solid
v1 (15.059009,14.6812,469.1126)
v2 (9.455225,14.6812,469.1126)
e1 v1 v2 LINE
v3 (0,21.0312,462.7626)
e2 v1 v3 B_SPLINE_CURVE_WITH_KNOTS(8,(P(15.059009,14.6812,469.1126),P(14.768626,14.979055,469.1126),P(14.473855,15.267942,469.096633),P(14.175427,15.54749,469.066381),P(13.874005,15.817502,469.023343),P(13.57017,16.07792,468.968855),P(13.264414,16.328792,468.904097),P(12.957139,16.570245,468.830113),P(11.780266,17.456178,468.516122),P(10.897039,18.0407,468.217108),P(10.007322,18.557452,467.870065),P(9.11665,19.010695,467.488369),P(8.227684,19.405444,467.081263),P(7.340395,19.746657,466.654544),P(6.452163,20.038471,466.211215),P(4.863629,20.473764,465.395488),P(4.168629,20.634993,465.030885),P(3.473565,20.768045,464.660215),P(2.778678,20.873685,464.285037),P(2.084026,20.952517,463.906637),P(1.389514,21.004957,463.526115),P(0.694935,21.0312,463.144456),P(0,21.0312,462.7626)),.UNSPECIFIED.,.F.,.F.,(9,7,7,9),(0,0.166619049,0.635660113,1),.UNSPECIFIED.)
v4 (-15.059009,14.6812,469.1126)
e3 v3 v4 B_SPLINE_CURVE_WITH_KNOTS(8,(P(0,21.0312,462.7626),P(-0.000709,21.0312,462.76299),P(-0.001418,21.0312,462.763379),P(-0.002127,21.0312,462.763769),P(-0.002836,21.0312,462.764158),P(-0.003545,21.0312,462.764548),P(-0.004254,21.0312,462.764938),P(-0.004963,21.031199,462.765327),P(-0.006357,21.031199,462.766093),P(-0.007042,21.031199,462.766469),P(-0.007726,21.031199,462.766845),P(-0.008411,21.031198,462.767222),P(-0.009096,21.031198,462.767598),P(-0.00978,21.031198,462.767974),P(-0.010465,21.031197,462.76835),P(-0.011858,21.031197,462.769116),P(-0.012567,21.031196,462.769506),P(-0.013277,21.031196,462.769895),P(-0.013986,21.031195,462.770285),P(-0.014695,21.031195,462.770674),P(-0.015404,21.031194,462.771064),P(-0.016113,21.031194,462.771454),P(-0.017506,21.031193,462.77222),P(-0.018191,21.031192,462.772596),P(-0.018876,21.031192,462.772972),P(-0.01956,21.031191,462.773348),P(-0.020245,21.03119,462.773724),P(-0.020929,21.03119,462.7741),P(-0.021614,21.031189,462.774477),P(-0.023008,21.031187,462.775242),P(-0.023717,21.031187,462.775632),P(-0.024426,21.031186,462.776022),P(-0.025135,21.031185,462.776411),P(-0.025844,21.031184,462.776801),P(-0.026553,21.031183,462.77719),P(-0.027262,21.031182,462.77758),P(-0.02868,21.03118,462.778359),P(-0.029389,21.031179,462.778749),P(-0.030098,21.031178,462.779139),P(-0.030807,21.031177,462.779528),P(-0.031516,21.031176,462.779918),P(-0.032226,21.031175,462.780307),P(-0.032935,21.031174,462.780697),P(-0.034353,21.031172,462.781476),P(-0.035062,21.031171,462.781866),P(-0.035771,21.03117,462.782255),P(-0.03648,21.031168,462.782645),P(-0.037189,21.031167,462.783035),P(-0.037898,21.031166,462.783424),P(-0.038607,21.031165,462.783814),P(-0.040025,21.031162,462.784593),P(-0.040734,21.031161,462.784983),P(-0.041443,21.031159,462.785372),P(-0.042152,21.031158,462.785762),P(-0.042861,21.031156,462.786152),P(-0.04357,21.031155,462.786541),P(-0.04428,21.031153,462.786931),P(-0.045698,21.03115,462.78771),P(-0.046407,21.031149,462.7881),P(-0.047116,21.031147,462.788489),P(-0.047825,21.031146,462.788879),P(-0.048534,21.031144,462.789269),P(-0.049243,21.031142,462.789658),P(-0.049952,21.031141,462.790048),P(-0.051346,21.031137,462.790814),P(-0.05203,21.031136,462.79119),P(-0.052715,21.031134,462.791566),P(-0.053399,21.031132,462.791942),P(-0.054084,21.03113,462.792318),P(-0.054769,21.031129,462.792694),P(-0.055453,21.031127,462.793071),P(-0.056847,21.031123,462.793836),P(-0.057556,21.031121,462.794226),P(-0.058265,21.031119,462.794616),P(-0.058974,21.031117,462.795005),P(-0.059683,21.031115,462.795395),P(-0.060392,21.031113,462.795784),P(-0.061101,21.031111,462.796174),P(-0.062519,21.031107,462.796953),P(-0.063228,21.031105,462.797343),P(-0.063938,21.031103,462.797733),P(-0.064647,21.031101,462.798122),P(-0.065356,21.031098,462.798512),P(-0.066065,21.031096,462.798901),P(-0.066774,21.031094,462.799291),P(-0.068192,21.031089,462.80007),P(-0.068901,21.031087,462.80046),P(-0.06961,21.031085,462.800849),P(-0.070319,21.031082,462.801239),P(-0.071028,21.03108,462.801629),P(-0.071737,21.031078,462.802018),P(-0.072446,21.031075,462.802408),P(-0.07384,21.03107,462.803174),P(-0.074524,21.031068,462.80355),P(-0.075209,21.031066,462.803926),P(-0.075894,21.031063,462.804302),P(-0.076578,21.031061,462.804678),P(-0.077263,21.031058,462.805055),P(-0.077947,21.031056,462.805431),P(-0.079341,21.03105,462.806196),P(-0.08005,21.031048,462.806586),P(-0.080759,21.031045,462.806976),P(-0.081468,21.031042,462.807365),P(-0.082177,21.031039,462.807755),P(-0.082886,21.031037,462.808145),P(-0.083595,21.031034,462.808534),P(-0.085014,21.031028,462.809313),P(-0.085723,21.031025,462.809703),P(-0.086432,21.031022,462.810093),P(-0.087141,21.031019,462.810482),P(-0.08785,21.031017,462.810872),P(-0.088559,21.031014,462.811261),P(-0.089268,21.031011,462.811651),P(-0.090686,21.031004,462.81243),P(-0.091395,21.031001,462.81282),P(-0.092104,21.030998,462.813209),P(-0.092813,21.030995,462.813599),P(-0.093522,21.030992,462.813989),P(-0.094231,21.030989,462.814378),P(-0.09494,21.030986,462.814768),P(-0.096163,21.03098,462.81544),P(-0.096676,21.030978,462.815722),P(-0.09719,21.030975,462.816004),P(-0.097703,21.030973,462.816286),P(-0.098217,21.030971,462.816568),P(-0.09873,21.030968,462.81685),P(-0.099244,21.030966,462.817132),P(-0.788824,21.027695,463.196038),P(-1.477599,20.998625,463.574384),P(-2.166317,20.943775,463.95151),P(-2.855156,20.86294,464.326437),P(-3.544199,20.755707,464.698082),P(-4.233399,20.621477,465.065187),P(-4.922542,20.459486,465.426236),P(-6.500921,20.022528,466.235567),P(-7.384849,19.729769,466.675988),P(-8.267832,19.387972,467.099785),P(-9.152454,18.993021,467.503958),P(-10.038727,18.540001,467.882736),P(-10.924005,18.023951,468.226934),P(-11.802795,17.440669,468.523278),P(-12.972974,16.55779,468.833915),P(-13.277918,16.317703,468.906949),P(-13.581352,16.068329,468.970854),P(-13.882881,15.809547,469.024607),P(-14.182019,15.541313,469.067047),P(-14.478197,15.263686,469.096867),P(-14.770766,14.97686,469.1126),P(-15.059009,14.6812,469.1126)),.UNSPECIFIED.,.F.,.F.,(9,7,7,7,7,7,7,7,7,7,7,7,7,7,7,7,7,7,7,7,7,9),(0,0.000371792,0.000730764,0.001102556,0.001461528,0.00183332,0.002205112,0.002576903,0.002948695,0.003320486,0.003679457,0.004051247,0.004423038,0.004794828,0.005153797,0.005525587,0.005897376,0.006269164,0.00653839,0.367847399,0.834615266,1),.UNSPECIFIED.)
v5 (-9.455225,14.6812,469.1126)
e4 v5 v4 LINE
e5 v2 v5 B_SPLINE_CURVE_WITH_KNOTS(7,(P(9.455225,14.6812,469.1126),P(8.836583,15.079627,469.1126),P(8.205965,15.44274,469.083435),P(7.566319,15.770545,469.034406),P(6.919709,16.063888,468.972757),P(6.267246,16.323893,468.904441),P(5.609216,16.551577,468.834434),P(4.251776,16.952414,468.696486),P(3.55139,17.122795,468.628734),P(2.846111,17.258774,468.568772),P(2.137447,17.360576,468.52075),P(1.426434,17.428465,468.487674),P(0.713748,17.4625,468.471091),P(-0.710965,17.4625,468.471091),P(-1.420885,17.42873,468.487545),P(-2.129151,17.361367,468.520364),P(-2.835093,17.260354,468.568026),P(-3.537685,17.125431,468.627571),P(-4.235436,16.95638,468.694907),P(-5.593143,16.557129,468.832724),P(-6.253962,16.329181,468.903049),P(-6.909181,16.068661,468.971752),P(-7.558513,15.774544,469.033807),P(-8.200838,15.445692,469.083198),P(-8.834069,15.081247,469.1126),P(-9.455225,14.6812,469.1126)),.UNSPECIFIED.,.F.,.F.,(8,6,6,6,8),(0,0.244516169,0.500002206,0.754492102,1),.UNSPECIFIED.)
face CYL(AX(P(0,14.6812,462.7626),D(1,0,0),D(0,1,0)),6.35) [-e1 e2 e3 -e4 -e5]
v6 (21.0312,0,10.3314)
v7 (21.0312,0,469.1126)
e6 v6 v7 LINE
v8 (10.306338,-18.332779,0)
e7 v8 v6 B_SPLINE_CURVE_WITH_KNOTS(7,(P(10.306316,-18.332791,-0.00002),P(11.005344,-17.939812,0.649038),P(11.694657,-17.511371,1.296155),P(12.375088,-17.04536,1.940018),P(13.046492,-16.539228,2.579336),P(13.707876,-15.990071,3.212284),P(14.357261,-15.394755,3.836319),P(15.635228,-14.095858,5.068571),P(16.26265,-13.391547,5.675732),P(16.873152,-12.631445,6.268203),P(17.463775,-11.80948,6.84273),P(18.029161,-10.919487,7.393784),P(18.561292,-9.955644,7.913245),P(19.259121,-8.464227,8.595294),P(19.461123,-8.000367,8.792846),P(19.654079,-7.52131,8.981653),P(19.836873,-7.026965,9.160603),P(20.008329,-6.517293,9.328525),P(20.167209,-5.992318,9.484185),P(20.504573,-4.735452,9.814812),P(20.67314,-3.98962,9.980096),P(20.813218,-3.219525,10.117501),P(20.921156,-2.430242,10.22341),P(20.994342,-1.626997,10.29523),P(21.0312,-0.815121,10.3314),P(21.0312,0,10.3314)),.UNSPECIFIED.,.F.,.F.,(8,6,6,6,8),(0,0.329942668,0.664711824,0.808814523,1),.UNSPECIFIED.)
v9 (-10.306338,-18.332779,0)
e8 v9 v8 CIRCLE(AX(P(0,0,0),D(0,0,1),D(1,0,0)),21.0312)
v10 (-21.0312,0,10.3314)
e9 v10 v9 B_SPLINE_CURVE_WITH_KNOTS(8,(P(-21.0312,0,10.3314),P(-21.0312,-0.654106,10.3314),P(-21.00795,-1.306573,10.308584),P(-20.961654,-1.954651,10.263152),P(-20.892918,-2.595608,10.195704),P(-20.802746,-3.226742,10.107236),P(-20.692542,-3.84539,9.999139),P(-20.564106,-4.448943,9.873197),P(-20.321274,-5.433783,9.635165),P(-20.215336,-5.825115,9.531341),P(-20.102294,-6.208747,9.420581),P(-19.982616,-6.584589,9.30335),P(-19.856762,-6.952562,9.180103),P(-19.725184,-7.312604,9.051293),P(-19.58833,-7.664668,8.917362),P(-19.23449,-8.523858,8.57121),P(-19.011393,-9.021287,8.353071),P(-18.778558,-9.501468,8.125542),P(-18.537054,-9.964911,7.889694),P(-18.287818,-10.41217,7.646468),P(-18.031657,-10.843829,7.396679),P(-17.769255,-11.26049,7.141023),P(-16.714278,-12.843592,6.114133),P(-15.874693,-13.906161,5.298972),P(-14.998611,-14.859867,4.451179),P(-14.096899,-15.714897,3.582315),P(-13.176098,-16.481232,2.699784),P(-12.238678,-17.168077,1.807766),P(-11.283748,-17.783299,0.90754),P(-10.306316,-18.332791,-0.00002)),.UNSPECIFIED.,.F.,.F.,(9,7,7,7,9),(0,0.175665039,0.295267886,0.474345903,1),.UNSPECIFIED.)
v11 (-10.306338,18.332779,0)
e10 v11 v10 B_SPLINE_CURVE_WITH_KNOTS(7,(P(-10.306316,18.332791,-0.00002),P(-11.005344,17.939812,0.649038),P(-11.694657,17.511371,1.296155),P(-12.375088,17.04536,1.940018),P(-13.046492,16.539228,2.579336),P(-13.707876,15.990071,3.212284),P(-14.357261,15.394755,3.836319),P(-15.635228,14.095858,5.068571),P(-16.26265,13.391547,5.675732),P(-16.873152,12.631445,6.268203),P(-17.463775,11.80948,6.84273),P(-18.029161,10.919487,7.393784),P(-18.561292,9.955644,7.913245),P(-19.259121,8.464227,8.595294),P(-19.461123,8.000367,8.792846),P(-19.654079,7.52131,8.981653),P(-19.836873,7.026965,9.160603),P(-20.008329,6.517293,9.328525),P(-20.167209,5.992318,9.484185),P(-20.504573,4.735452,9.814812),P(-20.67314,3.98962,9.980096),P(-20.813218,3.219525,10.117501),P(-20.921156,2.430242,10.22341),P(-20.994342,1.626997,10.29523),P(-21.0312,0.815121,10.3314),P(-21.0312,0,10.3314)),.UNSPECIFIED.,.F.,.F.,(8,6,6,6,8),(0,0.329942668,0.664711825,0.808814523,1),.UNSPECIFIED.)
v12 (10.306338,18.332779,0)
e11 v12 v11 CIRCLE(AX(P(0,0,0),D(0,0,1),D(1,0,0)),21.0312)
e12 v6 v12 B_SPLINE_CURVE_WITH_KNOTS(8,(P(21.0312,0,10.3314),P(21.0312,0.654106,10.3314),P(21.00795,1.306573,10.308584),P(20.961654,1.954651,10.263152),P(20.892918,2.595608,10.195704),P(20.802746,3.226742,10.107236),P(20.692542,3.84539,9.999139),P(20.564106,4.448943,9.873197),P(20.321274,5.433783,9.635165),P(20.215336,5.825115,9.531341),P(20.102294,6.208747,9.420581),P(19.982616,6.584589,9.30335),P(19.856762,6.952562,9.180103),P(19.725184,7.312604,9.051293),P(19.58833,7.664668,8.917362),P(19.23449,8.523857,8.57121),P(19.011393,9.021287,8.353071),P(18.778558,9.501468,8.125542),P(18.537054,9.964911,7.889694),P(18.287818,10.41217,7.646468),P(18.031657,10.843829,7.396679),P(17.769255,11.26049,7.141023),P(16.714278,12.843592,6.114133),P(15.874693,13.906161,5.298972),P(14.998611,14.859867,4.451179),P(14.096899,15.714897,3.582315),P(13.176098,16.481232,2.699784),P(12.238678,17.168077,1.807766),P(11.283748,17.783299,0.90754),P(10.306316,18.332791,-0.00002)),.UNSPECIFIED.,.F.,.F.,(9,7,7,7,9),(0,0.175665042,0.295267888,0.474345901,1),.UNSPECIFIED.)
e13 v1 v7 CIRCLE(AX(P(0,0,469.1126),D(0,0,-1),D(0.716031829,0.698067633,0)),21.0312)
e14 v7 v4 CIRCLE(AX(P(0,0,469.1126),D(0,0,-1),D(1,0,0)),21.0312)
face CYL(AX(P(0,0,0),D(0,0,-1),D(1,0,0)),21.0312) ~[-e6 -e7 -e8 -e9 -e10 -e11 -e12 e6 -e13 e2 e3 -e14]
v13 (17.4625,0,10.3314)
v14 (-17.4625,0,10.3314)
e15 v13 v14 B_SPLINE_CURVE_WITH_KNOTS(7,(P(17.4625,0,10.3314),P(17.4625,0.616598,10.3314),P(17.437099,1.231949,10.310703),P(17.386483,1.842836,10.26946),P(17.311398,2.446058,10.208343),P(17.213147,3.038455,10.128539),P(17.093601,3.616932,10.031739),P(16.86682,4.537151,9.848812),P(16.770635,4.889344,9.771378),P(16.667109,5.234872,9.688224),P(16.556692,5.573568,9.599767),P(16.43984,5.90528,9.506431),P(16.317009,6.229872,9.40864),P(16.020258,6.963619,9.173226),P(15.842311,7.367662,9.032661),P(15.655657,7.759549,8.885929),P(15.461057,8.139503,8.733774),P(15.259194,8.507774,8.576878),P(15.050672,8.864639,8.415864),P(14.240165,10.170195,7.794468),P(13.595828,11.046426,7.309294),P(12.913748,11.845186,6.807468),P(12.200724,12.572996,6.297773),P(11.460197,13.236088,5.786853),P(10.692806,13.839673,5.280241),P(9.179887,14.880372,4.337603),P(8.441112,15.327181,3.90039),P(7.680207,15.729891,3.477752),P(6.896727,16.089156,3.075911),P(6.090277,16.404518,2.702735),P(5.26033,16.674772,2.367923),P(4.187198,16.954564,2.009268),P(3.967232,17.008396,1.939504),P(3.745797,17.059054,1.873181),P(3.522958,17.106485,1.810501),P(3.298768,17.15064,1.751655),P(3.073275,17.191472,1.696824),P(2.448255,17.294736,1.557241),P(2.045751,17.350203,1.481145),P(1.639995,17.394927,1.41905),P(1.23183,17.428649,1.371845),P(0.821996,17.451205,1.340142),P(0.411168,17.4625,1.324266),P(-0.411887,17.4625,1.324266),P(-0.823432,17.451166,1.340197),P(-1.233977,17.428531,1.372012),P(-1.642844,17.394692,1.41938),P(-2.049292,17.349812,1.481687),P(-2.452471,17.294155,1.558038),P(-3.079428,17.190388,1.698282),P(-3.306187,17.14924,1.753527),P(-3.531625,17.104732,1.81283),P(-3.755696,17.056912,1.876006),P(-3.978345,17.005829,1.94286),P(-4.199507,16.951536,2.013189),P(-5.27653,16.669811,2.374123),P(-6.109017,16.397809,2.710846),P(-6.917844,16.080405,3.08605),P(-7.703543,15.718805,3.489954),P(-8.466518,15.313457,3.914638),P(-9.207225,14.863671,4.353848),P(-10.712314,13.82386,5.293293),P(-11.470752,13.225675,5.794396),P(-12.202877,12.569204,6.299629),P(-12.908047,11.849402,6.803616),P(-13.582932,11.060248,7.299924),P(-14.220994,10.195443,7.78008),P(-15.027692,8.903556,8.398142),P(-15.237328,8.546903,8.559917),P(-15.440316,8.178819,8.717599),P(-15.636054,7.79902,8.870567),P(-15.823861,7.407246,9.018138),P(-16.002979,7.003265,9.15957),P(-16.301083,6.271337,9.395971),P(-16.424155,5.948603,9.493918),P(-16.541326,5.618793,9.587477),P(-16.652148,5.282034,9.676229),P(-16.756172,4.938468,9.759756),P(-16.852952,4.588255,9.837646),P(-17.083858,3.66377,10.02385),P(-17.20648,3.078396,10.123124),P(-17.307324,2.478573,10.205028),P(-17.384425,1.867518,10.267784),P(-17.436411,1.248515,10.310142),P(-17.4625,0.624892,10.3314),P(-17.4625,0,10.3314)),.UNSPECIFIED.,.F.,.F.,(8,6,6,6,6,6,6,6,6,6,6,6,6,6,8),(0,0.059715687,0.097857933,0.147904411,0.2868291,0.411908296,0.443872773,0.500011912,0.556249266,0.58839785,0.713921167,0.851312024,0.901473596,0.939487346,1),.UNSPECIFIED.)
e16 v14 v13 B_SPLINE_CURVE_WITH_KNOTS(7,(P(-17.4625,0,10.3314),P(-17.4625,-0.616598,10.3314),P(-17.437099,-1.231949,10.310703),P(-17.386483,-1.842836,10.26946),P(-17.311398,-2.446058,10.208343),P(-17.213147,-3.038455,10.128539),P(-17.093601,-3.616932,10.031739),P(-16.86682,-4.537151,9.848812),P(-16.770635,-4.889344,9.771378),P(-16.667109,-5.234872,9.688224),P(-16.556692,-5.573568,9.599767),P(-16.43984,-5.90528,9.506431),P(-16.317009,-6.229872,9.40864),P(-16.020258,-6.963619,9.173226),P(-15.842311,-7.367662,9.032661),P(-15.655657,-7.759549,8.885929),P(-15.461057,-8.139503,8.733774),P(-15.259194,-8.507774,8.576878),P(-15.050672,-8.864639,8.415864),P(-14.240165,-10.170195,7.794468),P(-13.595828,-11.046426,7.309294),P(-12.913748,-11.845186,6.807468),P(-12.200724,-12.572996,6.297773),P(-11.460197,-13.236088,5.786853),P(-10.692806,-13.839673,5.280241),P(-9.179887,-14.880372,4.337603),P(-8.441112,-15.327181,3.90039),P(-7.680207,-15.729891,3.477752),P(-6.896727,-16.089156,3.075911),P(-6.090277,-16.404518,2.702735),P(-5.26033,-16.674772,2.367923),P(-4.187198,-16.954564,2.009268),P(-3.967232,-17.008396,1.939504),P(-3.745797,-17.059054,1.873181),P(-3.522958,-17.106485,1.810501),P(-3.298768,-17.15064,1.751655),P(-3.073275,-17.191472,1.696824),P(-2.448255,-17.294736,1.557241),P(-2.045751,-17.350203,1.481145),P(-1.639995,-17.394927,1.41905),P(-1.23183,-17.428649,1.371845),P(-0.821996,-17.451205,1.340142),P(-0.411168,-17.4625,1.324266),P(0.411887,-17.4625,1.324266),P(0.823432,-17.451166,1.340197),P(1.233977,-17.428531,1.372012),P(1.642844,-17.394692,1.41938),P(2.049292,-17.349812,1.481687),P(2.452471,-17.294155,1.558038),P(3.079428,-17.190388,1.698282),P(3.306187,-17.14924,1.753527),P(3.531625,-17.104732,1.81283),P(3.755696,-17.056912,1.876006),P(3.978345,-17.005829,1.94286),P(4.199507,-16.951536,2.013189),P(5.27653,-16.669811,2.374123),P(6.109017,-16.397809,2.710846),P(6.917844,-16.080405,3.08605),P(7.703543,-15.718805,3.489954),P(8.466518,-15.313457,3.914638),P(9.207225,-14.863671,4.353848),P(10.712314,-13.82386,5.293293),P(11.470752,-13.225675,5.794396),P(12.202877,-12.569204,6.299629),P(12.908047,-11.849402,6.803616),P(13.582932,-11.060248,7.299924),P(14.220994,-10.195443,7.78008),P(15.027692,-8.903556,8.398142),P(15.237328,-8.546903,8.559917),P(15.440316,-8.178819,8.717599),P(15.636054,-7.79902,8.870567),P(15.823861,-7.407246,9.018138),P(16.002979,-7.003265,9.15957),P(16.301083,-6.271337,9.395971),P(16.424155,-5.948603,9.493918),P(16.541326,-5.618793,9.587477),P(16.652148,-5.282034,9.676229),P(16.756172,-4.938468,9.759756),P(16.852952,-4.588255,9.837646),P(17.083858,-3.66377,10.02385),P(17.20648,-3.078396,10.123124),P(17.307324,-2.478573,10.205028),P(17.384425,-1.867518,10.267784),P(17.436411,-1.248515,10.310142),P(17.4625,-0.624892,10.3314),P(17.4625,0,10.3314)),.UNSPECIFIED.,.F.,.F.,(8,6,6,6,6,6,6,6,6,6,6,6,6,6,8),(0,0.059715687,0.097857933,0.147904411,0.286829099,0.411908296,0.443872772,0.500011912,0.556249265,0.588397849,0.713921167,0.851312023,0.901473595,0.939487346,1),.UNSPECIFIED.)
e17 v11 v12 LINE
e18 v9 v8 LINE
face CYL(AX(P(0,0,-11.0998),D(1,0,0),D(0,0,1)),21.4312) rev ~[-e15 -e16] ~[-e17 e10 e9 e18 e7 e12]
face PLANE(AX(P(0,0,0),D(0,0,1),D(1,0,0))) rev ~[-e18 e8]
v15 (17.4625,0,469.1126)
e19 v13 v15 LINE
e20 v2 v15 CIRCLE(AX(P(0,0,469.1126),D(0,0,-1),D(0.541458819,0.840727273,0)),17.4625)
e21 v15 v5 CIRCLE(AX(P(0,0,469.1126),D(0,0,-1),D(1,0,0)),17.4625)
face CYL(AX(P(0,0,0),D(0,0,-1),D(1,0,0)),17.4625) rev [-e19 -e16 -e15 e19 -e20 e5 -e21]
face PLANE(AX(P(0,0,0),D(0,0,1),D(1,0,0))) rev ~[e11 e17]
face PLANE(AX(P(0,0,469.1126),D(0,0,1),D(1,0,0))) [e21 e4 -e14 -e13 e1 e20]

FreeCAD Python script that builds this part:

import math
import FreeCAD as App
import Part
import Sketcher
Q = App.Units.Quantity

doc = App.newDocument("Part")
body = doc.addObject("PartDesign::Body", "Body")

# Sketch on XY plane
sketch1 = body.newObject("Sketcher::SketchObject", "Sketch")
sketch1.AttachmentSupport = (doc.getObject("XY_Plane"), [""])
sketch1.MapMode = "FlatFace"
sketch1.addGeometry(Part.Circle(App.Vector(0, 0, 0), App.Vector(0, 0, 1), 21), False)
sketch1.addGeometry(Part.Circle(App.Vector(0, 0, 0), App.Vector(0, 0, 1), 17), False)
sketch1.addConstraint(Sketcher.Constraint("Coincident", 0, 3, -1, 1))
sketch1.addConstraint(Sketcher.Constraint("Coincident", 1, 3, -1, 1))
sketch1.addConstraint(Sketcher.Constraint("Diameter", 0, Q("1.656 in")))
sketch1.addConstraint(Sketcher.Constraint("Diameter", 1, Q("1.375 in")))
pad1 = body.newObject("PartDesign::Pad", "Pad")
pad1.Profile = sketch1
pad1.Length = Q("18.469 in")

# Sketch on YZ plane
sketch2 = body.newObject("Sketcher::SketchObject", "Sketch001")
sketch2.AttachmentSupport = (doc.getObject("YZ_Plane"), [""])
sketch2.MapMode = "FlatFace"
sketch2.addGeometry(Part.Circle(App.Vector(0, -11, 0), App.Vector(0, 0, 1), 21), False)
sketch2.addConstraint(Sketcher.Constraint("PointOnObject", 0, 3, -2))
sketch2.addConstraint(Sketcher.Constraint("Diameter", 0, Q("1.6875 in")))
sketch2.addConstraint(Sketcher.Constraint("DistanceY", 0, 3, -1, 1, Q("0.437 in")))
pocket1 = body.newObject("PartDesign::Pocket", "Pocket")
pocket1.Profile = sketch2
pocket1.Length = Q("42 in")
pocket1.Midplane = True

# Sketch on YZ plane
sketch3 = body.newObject("Sketcher::SketchObject", "Sketch002")
sketch3.AttachmentSupport = (doc.getObject("YZ_Plane"), [""])
sketch3.MapMode = "FlatFace"
sketch3.addGeometry(Part.LineSegment(App.Vector(21, 463, 0), App.Vector(21, 457, 0)), False)
sketch3.addGeometry(Part.LineSegment(App.Vector(21, 457, 0), App.Vector(30, 457, 0)), False)
sketch3.addGeometry(Part.LineSegment(App.Vector(30, 457, 0), App.Vector(30, 484, 0)), False)
sketch3.addGeometry(Part.LineSegment(App.Vector(30, 484, 0), App.Vector(9, 484, 0)), False)
sketch3.addGeometry(Part.LineSegment(App.Vector(9, 484, 0), App.Vector(9, 469, 0)), False)
sketch3.addGeometry(Part.LineSegment(App.Vector(9, 469, 0), App.Vector(15, 469, 0)), False)
sketch3.addGeometry(Part.ArcOfCircle(Part.Circle(App.Vector(15, 463, 0), App.Vector(0, 0, 1), 6), math.radians(0), math.radians(90)), False)
sketch3.addConstraint(Sketcher.Constraint("Coincident", 0, 2, 1, 1))
sketch3.addConstraint(Sketcher.Constraint("Coincident", 1, 2, 2, 1))
sketch3.addConstraint(Sketcher.Constraint("Coincident", 2, 2, 3, 1))
sketch3.addConstraint(Sketcher.Constraint("Coincident", 3, 2, 4, 1))
sketch3.addConstraint(Sketcher.Constraint("Coincident", 4, 2, 5, 1))
sketch3.addConstraint(Sketcher.Constraint("Tangent", 5, 2, 6, 2))
sketch3.addConstraint(Sketcher.Constraint("Tangent", 6, 1, 0, 1))
sketch3.addConstraint(Sketcher.Constraint("Vertical", 0))
sketch3.addConstraint(Sketcher.Constraint("Horizontal", 1))
sketch3.addConstraint(Sketcher.Constraint("Vertical", 2))
sketch3.addConstraint(Sketcher.Constraint("Horizontal", 3))
sketch3.addConstraint(Sketcher.Constraint("Vertical", 4))
sketch3.addConstraint(Sketcher.Constraint("Horizontal", 5))
sketch3.addConstraint(Sketcher.Constraint("Radius", 6, Q("0.25 in")))
sketch3.addConstraint(Sketcher.Constraint("DistanceY", 0, 2, 0, 1, Q("0.235 in")))
sketch3.addConstraint(Sketcher.Constraint("DistanceX", -1, 1, 6, 3, Q("0.578 in")))
sketch3.addConstraint(Sketcher.Constraint("DistanceY", -1, 1, 6, 3, Q("18.219 in")))
sketch3.addConstraint(Sketcher.Constraint("DistanceX", 1, 1, 1, 2, 8.5326))
sketch3.addConstraint(Sketcher.Constraint("DistanceX", 3, 2, 3, 1, 20.9466))
sketch3.addConstraint(Sketcher.Constraint("DistanceY", 2, 1, 2, 2, 26.9813))
pocket2 = body.newObject("PartDesign::Pocket", "Pocket001")
pocket2.Profile = sketch3
pocket2.Length = Q("42 in")
pocket2.Midplane = True

doc.recompute()
